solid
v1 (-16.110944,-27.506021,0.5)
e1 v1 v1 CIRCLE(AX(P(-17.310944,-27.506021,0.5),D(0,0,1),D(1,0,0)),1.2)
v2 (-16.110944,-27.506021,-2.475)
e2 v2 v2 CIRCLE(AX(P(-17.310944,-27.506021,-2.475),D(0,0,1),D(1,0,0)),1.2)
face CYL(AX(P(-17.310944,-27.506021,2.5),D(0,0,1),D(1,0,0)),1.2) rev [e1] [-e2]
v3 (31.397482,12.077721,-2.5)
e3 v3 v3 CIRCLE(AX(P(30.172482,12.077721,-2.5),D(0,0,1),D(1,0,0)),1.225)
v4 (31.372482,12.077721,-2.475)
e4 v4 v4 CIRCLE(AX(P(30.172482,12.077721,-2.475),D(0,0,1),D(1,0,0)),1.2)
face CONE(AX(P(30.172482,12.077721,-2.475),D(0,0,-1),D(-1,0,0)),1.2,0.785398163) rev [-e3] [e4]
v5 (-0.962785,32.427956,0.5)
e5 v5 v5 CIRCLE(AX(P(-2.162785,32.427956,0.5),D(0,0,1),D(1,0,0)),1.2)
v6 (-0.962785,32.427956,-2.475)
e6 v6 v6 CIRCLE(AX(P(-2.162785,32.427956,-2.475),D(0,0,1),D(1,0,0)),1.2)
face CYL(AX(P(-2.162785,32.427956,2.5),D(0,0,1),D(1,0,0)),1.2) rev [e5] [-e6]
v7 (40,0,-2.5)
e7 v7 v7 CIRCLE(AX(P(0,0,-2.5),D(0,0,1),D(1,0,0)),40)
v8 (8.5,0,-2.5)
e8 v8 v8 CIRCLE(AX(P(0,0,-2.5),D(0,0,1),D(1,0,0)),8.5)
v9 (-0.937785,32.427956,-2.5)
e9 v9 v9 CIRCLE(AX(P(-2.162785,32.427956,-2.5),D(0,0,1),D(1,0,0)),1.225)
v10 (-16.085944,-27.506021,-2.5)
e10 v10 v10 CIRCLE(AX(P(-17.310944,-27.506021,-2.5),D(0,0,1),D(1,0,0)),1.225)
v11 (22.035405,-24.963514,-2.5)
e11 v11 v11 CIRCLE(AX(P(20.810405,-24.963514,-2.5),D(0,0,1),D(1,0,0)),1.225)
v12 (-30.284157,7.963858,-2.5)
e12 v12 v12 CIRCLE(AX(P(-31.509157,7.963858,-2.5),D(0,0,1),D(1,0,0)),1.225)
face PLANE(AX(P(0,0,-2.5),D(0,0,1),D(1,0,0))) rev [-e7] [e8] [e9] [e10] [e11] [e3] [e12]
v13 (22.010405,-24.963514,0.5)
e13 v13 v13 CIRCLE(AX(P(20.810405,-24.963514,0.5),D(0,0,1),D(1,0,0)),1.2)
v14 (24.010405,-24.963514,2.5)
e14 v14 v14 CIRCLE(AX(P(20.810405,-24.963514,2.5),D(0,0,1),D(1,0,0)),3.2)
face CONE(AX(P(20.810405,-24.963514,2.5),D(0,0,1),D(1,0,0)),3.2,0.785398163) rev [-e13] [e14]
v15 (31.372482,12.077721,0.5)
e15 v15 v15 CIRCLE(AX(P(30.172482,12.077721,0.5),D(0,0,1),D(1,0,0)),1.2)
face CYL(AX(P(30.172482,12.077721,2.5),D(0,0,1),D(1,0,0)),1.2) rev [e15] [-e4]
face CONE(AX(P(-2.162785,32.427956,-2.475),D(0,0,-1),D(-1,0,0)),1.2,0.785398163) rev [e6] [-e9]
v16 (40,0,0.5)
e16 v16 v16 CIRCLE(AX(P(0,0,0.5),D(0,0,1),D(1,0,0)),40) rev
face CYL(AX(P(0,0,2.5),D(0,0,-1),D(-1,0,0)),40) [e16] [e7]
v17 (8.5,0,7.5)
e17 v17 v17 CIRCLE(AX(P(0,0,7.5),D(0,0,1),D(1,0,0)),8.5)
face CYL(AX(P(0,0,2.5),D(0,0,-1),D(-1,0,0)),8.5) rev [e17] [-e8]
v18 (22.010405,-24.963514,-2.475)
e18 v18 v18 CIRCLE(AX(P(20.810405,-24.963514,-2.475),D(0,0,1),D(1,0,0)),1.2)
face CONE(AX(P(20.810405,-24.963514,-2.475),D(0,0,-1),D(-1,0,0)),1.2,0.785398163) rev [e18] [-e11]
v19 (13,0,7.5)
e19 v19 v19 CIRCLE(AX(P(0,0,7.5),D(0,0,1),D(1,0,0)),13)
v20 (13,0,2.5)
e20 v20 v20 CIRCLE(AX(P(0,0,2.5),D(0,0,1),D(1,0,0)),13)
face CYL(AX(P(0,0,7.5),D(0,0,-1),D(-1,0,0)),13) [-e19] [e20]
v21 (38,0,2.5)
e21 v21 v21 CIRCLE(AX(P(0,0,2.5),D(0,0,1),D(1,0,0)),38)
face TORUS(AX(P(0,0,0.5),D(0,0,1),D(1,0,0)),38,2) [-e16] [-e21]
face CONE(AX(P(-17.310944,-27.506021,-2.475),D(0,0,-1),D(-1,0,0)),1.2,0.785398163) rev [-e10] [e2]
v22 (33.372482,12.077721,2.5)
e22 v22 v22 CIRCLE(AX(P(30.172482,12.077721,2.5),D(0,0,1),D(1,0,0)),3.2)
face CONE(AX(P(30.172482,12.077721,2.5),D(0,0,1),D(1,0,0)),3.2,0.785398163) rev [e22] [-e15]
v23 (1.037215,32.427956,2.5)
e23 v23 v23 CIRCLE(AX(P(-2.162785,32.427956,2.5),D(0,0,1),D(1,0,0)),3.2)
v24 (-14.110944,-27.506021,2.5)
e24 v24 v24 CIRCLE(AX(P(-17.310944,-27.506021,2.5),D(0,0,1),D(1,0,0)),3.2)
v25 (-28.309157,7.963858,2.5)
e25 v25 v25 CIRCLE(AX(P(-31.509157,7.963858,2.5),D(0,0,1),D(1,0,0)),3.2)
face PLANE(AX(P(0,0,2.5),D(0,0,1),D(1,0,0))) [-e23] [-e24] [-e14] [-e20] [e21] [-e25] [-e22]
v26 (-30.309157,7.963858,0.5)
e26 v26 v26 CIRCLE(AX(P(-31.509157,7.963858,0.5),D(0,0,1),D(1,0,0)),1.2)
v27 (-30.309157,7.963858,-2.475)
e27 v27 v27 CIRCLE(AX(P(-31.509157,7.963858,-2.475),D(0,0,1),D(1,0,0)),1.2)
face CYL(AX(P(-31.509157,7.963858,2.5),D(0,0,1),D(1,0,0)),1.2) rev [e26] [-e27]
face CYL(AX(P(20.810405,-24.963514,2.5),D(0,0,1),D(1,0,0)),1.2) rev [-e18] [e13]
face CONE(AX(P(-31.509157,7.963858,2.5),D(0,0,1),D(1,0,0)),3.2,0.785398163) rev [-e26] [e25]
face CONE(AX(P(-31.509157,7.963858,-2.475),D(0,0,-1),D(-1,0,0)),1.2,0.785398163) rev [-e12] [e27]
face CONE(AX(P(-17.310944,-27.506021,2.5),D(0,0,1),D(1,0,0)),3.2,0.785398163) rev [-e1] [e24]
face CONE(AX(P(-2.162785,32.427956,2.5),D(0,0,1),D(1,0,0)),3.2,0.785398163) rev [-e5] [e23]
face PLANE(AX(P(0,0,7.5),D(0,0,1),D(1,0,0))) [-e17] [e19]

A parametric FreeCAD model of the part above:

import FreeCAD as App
import Part
import Sketcher

V = App.Vector
Q = App.Units.Quantity


def edges_at(feature, points):
    """Names of the edges that pass closest to the given points."""
    edges = feature.Shape.Edges
    near = lambda p: min(range(len(edges)), key=lambda i: edges[i].distToShape(Part.Vertex(*p))[0])
    return sorted({f"Edge{near(p) + 1}" for p in points})

doc = App.newDocument("Part")
body = doc.addObject("PartDesign::Body", "Body")

# Sketch on XY plane
sketch1 = body.newObject("Sketcher::SketchObject", "Sketch")
sketch1.AttachmentSupport = (doc.getObject("XY_Plane"), [""])
sketch1.MapMode = "FlatFace"
sketch1.addGeometry(Part.Circle(V(0, 0, 0), V(0, 0, 1), 40), False)
sketch1.addGeometry(Part.Circle(V(0, 0, 0), V(0, 0, 1), 8), False)
sketch1.addConstraint(Sketcher.Constraint("Coincident", 0, 3, -1, 1))
sketch1.addConstraint(Sketcher.Constraint("Coincident", 1, 3, -1, 1))
sketch1.addConstraint(Sketcher.Constraint("Diameter", 0, 80.0))
sketch1.addConstraint(Sketcher.Constraint("Diameter", 1, 17.0))
pad1 = body.newObject("PartDesign::Pad", "Pad")
pad1.Profile = sketch1
pad1.Length = 5
pad1.Midplane = True
doc.recompute()

fillet = body.newObject("PartDesign::Fillet", "Fillet")
fillet.Base = (pad1, edges_at(pad1, [(-40, 0, 2.5)]))
fillet.Radius = 2

# Sketch on YZ plane
sketch2 = body.newObject("Sketcher::SketchObject", "Sketch001")
sketch2.AttachmentSupport = (doc.getObject("YZ_Plane"), [""])
sketch2.MapMode = "FlatFace"
sketch2.AttachmentOffset = App.Placement(V(0, 0, -2.162785), App.Rotation())
sketch2.addGeometry(Part.LineSegment(V(32.427956, -2.5, 0), V(32.427956, 2.5, 0)), False)
sketch2.addGeometry(Part.LineSegment(V(32.427956, 2.5, 0), V(29.227956, 2.5, 0)), False)
sketch2.addGeometry(Part.LineSegment(V(29.227956, 2.5, 0), V(31.227956, 0.5, 0)), False)
sketch2.addGeometry(Part.LineSegment(V(31.227956, 0.5, 0), V(31.227956, -2.475, 0)), False)
sketch2.addGeometry(Part.LineSegment(V(31.227956, -2.475, 0), V(31.202956, -2.5, 0)), False)
sketch2.addGeometry(Part.LineSegment(V(31.202956, -2.5, 0), V(32.427956, -2.5, 0)), False)
sketch2.addGeometry(Part.LineSegment(V(32.427956, 2.5, 0), V(32.427956, -2.5, 0)), True)  # axis
sketch2.addConstraint(Sketcher.Constraint("Coincident", 0, 2, 1, 1))
sketch2.addConstraint(Sketcher.Constraint("Coincident", 1, 2, 2, 1))
sketch2.addConstraint(Sketcher.Constraint("Coincident", 2, 2, 3, 1))
sketch2.addConstraint(Sketcher.Constraint("Coincident", 3, 2, 4, 1))
sketch2.addConstraint(Sketcher.Constraint("Coincident", 4, 2, 5, 1))
sketch2.addConstraint(Sketcher.Constraint("Coincident", 5, 2, 0, 1))
sketch2.addConstraint(Sketcher.Constraint("Vertical", 0))
sketch2.addConstraint(Sketcher.Constraint("Horizontal", 1))
sketch2.addConstraint(Sketcher.Constraint("Vertical", 3))
sketch2.addConstraint(Sketcher.Constraint("Horizontal", 5))
sketch2.addConstraint(Sketcher.Constraint("Vertical", 6))
sketch2.addConstraint(Sketcher.Constraint("Coincident", 6, 1, 0, 2))
sketch2.addConstraint(Sketcher.Constraint("Perpendicular", 2, 4))
sketch2.addConstraint(Sketcher.Constraint("Horizontal", 4, 2, 6, 2))
sketch2.addConstraint(Sketcher.Constraint("DistanceY", 0, 1, 0, 2, 5.0))
sketch2.addConstraint(Sketcher.Constraint("Angle", 2, Q("-45 deg")))
sketch2.addConstraint(Sketcher.Constraint("DistanceX", 1, 2, 1, 1, 3.2))
sketch2.addConstraint(Sketcher.Constraint("DistanceY", 2, 2, 0, 2, 2.0))
sketch2.addConstraint(Sketcher.Constraint("DistanceY", -1, 1, 0, 2, 2.5))
sketch2.addConstraint(Sketcher.Constraint("DistanceX", 5, 1, 5, 2, 1.225))
sketch2.addConstraint(Sketcher.Constraint("DistanceX", -1, 1, 0, 2, 32.427956))
groove = body.newObject("PartDesign::Groove", "Groove")
groove.Profile = sketch2
groove.ReferenceAxis = (sketch2, ["Axis0"])
groove.Angle = 360
doc.recompute()

polarpattern = body.newObject("PartDesign::PolarPattern", "PolarPattern")
polarpattern.Originals = [groove]
polarpattern.Axis = (doc.getObject("Z_Axis"), [""])
polarpattern.Angle = 360
polarpattern.Occurrences = 5
body.Tip = polarpattern

# Sketch on XY plane
sketch3 = body.newObject("Sketcher::SketchObject", "Sketch002")
sketch3.AttachmentSupport = (doc.getObject("XY_Plane"), [""])
sketch3.MapMode = "FlatFace"
sketch3.AttachmentOffset = App.Placement(V(0, 0, 2.5), App.Rotation())
sketch3.addGeometry(Part.Circle(V(0, 0, 0), V(0, 0, 1), 13), False)
sketch3.addGeometry(Part.Circle(V(0, 0, 0), V(0, 0, 1), 8), False)
sketch3.addConstraint(Sketcher.Constraint("Coincident", 0, 3, -1, 1))
sketch3.addConstraint(Sketcher.Constraint("Coincident", 1, 3, -1, 1))
sketch3.addConstraint(Sketcher.Constraint("Diameter", 0, 26.0))
sketch3.addConstraint(Sketcher.Constraint("Diameter", 1, 17.0))
pad2 = body.newObject("PartDesign::Pad", "Pad001")
pad2.Profile = sketch3
pad2.Length = 5

doc.recompute()
